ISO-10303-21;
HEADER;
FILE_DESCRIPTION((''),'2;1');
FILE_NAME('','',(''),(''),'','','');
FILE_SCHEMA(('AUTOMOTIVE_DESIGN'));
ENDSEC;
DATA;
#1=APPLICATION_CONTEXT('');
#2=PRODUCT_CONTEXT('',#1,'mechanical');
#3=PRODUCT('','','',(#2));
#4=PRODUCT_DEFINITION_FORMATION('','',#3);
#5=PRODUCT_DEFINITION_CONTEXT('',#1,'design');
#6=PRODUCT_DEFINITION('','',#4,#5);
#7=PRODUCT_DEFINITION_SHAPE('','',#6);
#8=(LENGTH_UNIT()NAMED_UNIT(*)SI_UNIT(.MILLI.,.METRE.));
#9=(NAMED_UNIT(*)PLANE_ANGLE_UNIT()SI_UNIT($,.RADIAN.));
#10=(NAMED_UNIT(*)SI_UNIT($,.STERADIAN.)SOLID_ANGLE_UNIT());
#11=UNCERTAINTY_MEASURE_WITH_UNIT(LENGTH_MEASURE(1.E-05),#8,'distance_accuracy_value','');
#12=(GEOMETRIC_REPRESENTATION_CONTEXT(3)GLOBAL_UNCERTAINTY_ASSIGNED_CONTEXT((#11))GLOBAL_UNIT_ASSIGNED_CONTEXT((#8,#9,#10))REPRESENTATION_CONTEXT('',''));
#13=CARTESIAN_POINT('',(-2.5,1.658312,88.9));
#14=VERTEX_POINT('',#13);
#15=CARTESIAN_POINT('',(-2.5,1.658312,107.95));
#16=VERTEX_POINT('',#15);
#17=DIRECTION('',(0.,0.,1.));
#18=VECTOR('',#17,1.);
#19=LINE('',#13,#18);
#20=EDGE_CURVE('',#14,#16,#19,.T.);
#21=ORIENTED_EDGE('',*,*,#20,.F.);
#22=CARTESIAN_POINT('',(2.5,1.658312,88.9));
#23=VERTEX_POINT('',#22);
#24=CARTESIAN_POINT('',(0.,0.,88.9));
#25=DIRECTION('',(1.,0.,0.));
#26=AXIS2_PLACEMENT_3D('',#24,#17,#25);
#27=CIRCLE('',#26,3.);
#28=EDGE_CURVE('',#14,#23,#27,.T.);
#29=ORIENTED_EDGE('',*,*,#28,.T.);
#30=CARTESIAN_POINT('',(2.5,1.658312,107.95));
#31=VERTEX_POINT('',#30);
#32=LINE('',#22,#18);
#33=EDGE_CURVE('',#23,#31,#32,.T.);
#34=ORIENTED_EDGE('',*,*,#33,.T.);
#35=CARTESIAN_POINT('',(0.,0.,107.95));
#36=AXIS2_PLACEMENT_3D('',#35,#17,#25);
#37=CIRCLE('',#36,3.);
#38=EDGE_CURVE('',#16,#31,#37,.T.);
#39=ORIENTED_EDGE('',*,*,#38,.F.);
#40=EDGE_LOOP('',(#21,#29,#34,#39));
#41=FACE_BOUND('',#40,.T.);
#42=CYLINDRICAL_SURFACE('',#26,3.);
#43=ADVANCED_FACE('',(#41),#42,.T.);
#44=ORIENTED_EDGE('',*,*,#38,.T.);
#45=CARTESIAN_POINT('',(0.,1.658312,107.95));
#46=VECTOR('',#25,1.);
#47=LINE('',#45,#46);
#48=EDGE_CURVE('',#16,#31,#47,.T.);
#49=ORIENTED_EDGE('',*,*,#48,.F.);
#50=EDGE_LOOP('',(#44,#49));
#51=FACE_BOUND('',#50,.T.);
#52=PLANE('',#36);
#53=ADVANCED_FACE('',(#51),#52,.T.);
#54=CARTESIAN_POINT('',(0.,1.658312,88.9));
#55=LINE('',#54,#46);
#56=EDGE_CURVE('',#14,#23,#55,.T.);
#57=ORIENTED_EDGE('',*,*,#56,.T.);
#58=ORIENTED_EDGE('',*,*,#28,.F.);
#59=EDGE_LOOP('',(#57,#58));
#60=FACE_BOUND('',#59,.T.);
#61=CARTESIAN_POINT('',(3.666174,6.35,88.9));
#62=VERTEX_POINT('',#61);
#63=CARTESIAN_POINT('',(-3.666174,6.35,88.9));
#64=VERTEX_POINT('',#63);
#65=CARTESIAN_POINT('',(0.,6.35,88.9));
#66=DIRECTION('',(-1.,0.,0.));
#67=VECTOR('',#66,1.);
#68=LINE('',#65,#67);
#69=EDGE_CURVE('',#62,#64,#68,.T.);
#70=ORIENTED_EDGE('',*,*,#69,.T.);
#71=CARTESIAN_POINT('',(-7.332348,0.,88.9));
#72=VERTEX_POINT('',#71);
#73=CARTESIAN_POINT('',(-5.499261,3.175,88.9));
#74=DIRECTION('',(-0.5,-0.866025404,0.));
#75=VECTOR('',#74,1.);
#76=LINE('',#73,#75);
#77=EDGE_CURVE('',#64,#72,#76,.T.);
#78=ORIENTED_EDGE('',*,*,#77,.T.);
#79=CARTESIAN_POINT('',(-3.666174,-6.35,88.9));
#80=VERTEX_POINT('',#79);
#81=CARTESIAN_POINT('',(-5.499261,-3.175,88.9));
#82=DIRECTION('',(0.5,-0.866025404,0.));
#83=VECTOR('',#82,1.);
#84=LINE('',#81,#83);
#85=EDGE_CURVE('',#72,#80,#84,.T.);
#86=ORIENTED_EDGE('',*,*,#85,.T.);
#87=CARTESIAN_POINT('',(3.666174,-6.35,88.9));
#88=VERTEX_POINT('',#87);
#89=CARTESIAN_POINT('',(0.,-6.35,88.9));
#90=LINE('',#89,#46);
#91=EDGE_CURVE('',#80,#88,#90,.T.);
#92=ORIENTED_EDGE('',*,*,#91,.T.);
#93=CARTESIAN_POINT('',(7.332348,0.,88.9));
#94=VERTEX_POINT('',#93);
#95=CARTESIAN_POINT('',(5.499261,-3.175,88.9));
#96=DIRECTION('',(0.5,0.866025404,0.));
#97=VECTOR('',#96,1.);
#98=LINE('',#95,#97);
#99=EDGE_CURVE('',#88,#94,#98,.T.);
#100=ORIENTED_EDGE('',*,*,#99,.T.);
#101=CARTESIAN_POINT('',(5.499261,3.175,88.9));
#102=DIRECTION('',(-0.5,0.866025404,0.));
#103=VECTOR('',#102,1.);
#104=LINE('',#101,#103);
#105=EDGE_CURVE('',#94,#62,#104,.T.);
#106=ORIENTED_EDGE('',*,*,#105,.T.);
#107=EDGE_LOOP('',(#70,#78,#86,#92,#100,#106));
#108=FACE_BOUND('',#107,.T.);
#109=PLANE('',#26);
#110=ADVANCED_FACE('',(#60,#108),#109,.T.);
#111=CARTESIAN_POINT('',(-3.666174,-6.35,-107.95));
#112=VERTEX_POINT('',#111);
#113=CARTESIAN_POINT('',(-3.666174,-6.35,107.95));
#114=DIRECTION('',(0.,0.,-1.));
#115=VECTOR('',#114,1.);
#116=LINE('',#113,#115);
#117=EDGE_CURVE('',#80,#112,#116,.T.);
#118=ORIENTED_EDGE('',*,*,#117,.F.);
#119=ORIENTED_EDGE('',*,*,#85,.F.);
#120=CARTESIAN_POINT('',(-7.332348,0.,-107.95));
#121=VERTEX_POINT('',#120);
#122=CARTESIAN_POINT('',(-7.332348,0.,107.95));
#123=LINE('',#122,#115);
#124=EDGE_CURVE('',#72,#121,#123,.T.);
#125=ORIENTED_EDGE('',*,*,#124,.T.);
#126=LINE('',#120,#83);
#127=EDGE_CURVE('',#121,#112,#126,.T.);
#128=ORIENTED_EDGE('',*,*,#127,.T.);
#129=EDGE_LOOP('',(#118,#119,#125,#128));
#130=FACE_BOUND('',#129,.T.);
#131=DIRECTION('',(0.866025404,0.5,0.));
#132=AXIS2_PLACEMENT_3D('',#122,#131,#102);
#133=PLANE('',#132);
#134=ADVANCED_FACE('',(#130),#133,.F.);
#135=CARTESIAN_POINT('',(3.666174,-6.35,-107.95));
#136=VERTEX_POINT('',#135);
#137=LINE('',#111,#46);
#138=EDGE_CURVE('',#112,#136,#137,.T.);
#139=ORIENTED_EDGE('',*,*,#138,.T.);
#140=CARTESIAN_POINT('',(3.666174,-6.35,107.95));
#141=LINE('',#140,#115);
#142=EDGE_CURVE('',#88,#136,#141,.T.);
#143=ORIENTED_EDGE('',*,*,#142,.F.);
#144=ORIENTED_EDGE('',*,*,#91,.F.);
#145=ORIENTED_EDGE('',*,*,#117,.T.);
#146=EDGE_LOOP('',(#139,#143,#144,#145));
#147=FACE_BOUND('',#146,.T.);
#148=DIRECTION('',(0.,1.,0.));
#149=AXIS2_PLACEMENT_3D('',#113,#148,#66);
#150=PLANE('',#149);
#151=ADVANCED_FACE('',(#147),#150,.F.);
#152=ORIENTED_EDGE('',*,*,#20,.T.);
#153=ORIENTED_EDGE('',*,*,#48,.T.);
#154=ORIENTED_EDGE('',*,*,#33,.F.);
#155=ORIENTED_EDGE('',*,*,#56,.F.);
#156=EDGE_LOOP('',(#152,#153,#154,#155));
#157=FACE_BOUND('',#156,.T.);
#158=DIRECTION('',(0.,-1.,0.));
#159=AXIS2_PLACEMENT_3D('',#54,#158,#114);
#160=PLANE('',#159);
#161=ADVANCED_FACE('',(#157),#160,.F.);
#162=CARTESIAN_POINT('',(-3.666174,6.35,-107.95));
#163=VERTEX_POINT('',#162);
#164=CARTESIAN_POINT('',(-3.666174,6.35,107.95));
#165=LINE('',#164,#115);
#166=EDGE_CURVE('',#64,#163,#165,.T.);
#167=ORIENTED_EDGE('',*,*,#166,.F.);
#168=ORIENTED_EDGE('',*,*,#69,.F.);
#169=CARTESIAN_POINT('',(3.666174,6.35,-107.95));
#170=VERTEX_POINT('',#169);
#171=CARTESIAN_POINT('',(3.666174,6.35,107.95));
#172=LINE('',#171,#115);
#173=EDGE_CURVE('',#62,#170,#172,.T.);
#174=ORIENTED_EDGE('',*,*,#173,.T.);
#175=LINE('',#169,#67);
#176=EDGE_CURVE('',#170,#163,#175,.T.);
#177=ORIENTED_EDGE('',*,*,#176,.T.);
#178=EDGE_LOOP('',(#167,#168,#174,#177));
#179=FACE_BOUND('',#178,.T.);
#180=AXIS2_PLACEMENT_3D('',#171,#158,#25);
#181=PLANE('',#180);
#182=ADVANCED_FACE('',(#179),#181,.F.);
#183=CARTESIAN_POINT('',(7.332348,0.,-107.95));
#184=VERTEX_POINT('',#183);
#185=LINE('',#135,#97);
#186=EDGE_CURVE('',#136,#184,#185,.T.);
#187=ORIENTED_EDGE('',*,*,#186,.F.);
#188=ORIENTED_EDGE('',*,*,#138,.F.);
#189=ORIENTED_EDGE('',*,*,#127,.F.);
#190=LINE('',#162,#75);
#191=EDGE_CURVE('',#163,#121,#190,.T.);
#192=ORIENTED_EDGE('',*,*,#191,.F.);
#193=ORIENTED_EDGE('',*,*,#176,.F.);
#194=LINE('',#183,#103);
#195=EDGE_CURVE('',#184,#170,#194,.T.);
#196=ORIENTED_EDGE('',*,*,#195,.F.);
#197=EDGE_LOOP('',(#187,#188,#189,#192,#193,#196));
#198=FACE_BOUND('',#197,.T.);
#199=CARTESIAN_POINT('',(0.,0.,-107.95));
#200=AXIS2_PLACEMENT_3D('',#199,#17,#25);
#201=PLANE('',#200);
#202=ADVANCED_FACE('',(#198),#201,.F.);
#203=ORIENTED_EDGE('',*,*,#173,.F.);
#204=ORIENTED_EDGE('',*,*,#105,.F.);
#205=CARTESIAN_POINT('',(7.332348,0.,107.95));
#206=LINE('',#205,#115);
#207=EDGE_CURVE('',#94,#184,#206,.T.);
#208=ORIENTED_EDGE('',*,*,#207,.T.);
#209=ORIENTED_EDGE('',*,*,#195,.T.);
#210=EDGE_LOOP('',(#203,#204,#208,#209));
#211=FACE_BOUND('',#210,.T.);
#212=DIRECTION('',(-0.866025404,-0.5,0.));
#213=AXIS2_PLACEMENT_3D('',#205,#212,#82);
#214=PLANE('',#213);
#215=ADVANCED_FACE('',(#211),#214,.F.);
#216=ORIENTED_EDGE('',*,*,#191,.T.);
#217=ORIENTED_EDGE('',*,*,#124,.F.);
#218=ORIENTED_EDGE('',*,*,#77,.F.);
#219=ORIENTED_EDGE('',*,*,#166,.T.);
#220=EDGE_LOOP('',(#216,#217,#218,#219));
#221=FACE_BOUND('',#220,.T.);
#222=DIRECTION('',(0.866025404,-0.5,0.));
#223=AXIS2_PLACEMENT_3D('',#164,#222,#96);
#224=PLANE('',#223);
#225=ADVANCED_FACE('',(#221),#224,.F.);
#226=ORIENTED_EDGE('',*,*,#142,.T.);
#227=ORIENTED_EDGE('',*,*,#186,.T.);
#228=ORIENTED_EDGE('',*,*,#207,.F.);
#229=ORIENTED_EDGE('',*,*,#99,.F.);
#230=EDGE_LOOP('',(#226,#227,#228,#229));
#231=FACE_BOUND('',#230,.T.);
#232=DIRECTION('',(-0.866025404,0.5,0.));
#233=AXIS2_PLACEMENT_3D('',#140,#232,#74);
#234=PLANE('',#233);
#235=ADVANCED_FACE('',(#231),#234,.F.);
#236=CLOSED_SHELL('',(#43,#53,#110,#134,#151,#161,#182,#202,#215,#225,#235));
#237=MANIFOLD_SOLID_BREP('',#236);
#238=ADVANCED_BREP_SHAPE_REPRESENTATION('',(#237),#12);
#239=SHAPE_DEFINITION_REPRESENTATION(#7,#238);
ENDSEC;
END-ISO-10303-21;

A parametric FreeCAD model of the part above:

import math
import FreeCAD as App
import Part
import Sketcher
from FreeCAD import Vector
Q = App.Units.Quantity

doc = App.newDocument("Part")
body = doc.addObject("PartDesign::Body", "Body")

# Sketch on XY plane
sketch1 = body.newObject("Sketcher::SketchObject", "Sketch")
sketch1.AttachmentSupport = (doc.getObject("XY_Plane"), [""])
sketch1.MapMode = "FlatFace"
sketch1.addGeometry(Part.LineSegment(Vector(3.666174, 6.35, 0), Vector(-3.666174, 6.35, 0)), False)
sketch1.addGeometry(Part.LineSegment(Vector(-3.666174, 6.35, 0), Vector(-7.332348, 0, 0)), False)
sketch1.addGeometry(Part.LineSegment(Vector(-7.332348, 0, 0), Vector(-3.666174, -6.35, 0)), False)
sketch1.addGeometry(Part.LineSegment(Vector(-3.666174, -6.35, 0), Vector(3.666174, -6.35, 0)), False)
sketch1.addGeometry(Part.LineSegment(Vector(3.666174, -6.35, 0), Vector(7.332348, 0, 0)), False)
sketch1.addGeometry(Part.LineSegment(Vector(7.332348, 0, 0), Vector(3.666174, 6.35, 0)), False)
sketch1.addConstraint(Sketcher.Constraint("Coincident", 0, 2, 1, 1))
sketch1.addConstraint(Sketcher.Constraint("Coincident", 1, 2, 2, 1))
sketch1.addConstraint(Sketcher.Constraint("Coincident", 2, 2, 3, 1))
sketch1.addConstraint(Sketcher.Constraint("Coincident", 3, 2, 4, 1))
sketch1.addConstraint(Sketcher.Constraint("Coincident", 4, 2, 5, 1))
sketch1.addConstraint(Sketcher.Constraint("Coincident", 5, 2, 0, 1))
sketch1.addConstraint(Sketcher.Constraint("Horizontal", 0))
sketch1.addConstraint(Sketcher.Constraint("Horizontal", 3))
sketch1.addConstraint(Sketcher.Constraint("Symmetric", 0, 2, 3, 2, -1, 1))
sketch1.addConstraint(Sketcher.Constraint("Symmetric", 1, 2, 4, 2, -1, 1))
sketch1.addConstraint(Sketcher.Constraint("PointOnObject", 1, 2, -1))
sketch1.addConstraint(Sketcher.Constraint("Parallel", 2, 5))
sketch1.addConstraint(Sketcher.Constraint("Vertical", 0, 2, 2, 2))
sketch1.addConstraint(Sketcher.Constraint("Angle", 1, Q("-120 deg")))
sketch1.addConstraint(Sketcher.Constraint("DistanceY", 2, 2, 0, 2, 12.7))
sketch1.addConstraint(Sketcher.Constraint("DistanceX", 0, 2, 0, 1, 7.332348))
pad1 = body.newObject("PartDesign::Pad", "Pad")
pad1.Profile = sketch1
pad1.Length = 215.9
pad1.Midplane = True

# Sketch on XY plane
sketch2 = body.newObject("Sketcher::SketchObject", "Sketch001")
sketch2.AttachmentSupport = (doc.getObject("XY_Plane"), [""])
sketch2.MapMode = "FlatFace"
sketch2.AttachmentOffset = App.Placement(Vector(0, 0, 107.95), App.Rotation())
sketch2.addGeometry(Part.LineSegment(Vector(-3.666174, 6.35, 0), Vector(-7.332348, 0, 0)), False)
sketch2.addGeometry(Part.LineSegment(Vector(-7.332348, 0, 0), Vector(-3.666174, -6.35, 0)), False)
sketch2.addGeometry(Part.LineSegment(Vector(-3.666174, -6.35, 0), Vector(3.666174, -6.35, 0)), False)
sketch2.addGeometry(Part.LineSegment(Vector(3.666174, -6.35, 0), Vector(7.332348, 0, 0)), False)
sketch2.addGeometry(Part.LineSegment(Vector(7.332348, 0, 0), Vector(3.666174, 6.35, 0)), False)
sketch2.addGeometry(Part.LineSegment(Vector(3.666174, 6.35, 0), Vector(-3.666174, 6.35, 0)), False)
sketch2.addGeometry(Part.ArcOfCircle(Part.Circle(Vector(0, 0, 0), Vector(0, 0, 1), 3), math.radians(146.44269), math.radians(393.55731)), False)
sketch2.addGeometry(Part.LineSegment(Vector(-2.5, 1.658312, 0), Vector(2.5, 1.658312, 0)), False)
sketch2.addConstraint(Sketcher.Constraint("Coincident", 0, 2, 1, 1))
sketch2.addConstraint(Sketcher.Constraint("Coincident", 1, 2, 2, 1))
sketch2.addConstraint(Sketcher.Constraint("Coincident", 2, 2, 3, 1))
sketch2.addConstraint(Sketcher.Constraint("Coincident", 3, 2, 4, 1))
sketch2.addConstraint(Sketcher.Constraint("Coincident", 4, 2, 5, 1))
sketch2.addConstraint(Sketcher.Constraint("Coincident", 5, 2, 0, 1))
sketch2.addConstraint(Sketcher.Constraint("Coincident", 6, 1, 7, 1))
sketch2.addConstraint(Sketcher.Constraint("Coincident", 7, 2, 6, 2))
sketch2.addConstraint(Sketcher.Constraint("Horizontal", 2))
sketch2.addConstraint(Sketcher.Constraint("Horizontal", 5))
sketch2.addConstraint(Sketcher.Constraint("Horizontal", 7))
sketch2.addConstraint(Sketcher.Constraint("Coincident", 6, 3, -1, 1))
sketch2.addConstraint(Sketcher.Constraint("Symmetric", 0, 2, 3, 2, -1, 1))
sketch2.addConstraint(Sketcher.Constraint("Symmetric", 1, 2, 4, 2, -1, 1))
sketch2.addConstraint(Sketcher.Constraint("PointOnObject", 0, 2, -1))
sketch2.addConstraint(Sketcher.Constraint("Parallel", 0, 3))
sketch2.addConstraint(Sketcher.Constraint("Vertical", 2, 2, 4, 2))
sketch2.addConstraint(Sketcher.Constraint("Radius", 6, 3.0))
sketch2.addConstraint(Sketcher.Constraint("DistanceX", 7, 1, 7, 2, 5.0))
sketch2.addConstraint(Sketcher.Constraint("Angle", 0, Q("-120 deg")))
sketch2.addConstraint(Sketcher.Constraint("DistanceY", 2, 2, 4, 2, 12.7))
sketch2.addConstraint(Sketcher.Constraint("DistanceX", 2, 1, 2, 2, 7.332348))
pocket1 = body.newObject("PartDesign::Pocket", "Pocket")
pocket1.Profile = sketch2
pocket1.Length = 19.05

doc.recompute()
